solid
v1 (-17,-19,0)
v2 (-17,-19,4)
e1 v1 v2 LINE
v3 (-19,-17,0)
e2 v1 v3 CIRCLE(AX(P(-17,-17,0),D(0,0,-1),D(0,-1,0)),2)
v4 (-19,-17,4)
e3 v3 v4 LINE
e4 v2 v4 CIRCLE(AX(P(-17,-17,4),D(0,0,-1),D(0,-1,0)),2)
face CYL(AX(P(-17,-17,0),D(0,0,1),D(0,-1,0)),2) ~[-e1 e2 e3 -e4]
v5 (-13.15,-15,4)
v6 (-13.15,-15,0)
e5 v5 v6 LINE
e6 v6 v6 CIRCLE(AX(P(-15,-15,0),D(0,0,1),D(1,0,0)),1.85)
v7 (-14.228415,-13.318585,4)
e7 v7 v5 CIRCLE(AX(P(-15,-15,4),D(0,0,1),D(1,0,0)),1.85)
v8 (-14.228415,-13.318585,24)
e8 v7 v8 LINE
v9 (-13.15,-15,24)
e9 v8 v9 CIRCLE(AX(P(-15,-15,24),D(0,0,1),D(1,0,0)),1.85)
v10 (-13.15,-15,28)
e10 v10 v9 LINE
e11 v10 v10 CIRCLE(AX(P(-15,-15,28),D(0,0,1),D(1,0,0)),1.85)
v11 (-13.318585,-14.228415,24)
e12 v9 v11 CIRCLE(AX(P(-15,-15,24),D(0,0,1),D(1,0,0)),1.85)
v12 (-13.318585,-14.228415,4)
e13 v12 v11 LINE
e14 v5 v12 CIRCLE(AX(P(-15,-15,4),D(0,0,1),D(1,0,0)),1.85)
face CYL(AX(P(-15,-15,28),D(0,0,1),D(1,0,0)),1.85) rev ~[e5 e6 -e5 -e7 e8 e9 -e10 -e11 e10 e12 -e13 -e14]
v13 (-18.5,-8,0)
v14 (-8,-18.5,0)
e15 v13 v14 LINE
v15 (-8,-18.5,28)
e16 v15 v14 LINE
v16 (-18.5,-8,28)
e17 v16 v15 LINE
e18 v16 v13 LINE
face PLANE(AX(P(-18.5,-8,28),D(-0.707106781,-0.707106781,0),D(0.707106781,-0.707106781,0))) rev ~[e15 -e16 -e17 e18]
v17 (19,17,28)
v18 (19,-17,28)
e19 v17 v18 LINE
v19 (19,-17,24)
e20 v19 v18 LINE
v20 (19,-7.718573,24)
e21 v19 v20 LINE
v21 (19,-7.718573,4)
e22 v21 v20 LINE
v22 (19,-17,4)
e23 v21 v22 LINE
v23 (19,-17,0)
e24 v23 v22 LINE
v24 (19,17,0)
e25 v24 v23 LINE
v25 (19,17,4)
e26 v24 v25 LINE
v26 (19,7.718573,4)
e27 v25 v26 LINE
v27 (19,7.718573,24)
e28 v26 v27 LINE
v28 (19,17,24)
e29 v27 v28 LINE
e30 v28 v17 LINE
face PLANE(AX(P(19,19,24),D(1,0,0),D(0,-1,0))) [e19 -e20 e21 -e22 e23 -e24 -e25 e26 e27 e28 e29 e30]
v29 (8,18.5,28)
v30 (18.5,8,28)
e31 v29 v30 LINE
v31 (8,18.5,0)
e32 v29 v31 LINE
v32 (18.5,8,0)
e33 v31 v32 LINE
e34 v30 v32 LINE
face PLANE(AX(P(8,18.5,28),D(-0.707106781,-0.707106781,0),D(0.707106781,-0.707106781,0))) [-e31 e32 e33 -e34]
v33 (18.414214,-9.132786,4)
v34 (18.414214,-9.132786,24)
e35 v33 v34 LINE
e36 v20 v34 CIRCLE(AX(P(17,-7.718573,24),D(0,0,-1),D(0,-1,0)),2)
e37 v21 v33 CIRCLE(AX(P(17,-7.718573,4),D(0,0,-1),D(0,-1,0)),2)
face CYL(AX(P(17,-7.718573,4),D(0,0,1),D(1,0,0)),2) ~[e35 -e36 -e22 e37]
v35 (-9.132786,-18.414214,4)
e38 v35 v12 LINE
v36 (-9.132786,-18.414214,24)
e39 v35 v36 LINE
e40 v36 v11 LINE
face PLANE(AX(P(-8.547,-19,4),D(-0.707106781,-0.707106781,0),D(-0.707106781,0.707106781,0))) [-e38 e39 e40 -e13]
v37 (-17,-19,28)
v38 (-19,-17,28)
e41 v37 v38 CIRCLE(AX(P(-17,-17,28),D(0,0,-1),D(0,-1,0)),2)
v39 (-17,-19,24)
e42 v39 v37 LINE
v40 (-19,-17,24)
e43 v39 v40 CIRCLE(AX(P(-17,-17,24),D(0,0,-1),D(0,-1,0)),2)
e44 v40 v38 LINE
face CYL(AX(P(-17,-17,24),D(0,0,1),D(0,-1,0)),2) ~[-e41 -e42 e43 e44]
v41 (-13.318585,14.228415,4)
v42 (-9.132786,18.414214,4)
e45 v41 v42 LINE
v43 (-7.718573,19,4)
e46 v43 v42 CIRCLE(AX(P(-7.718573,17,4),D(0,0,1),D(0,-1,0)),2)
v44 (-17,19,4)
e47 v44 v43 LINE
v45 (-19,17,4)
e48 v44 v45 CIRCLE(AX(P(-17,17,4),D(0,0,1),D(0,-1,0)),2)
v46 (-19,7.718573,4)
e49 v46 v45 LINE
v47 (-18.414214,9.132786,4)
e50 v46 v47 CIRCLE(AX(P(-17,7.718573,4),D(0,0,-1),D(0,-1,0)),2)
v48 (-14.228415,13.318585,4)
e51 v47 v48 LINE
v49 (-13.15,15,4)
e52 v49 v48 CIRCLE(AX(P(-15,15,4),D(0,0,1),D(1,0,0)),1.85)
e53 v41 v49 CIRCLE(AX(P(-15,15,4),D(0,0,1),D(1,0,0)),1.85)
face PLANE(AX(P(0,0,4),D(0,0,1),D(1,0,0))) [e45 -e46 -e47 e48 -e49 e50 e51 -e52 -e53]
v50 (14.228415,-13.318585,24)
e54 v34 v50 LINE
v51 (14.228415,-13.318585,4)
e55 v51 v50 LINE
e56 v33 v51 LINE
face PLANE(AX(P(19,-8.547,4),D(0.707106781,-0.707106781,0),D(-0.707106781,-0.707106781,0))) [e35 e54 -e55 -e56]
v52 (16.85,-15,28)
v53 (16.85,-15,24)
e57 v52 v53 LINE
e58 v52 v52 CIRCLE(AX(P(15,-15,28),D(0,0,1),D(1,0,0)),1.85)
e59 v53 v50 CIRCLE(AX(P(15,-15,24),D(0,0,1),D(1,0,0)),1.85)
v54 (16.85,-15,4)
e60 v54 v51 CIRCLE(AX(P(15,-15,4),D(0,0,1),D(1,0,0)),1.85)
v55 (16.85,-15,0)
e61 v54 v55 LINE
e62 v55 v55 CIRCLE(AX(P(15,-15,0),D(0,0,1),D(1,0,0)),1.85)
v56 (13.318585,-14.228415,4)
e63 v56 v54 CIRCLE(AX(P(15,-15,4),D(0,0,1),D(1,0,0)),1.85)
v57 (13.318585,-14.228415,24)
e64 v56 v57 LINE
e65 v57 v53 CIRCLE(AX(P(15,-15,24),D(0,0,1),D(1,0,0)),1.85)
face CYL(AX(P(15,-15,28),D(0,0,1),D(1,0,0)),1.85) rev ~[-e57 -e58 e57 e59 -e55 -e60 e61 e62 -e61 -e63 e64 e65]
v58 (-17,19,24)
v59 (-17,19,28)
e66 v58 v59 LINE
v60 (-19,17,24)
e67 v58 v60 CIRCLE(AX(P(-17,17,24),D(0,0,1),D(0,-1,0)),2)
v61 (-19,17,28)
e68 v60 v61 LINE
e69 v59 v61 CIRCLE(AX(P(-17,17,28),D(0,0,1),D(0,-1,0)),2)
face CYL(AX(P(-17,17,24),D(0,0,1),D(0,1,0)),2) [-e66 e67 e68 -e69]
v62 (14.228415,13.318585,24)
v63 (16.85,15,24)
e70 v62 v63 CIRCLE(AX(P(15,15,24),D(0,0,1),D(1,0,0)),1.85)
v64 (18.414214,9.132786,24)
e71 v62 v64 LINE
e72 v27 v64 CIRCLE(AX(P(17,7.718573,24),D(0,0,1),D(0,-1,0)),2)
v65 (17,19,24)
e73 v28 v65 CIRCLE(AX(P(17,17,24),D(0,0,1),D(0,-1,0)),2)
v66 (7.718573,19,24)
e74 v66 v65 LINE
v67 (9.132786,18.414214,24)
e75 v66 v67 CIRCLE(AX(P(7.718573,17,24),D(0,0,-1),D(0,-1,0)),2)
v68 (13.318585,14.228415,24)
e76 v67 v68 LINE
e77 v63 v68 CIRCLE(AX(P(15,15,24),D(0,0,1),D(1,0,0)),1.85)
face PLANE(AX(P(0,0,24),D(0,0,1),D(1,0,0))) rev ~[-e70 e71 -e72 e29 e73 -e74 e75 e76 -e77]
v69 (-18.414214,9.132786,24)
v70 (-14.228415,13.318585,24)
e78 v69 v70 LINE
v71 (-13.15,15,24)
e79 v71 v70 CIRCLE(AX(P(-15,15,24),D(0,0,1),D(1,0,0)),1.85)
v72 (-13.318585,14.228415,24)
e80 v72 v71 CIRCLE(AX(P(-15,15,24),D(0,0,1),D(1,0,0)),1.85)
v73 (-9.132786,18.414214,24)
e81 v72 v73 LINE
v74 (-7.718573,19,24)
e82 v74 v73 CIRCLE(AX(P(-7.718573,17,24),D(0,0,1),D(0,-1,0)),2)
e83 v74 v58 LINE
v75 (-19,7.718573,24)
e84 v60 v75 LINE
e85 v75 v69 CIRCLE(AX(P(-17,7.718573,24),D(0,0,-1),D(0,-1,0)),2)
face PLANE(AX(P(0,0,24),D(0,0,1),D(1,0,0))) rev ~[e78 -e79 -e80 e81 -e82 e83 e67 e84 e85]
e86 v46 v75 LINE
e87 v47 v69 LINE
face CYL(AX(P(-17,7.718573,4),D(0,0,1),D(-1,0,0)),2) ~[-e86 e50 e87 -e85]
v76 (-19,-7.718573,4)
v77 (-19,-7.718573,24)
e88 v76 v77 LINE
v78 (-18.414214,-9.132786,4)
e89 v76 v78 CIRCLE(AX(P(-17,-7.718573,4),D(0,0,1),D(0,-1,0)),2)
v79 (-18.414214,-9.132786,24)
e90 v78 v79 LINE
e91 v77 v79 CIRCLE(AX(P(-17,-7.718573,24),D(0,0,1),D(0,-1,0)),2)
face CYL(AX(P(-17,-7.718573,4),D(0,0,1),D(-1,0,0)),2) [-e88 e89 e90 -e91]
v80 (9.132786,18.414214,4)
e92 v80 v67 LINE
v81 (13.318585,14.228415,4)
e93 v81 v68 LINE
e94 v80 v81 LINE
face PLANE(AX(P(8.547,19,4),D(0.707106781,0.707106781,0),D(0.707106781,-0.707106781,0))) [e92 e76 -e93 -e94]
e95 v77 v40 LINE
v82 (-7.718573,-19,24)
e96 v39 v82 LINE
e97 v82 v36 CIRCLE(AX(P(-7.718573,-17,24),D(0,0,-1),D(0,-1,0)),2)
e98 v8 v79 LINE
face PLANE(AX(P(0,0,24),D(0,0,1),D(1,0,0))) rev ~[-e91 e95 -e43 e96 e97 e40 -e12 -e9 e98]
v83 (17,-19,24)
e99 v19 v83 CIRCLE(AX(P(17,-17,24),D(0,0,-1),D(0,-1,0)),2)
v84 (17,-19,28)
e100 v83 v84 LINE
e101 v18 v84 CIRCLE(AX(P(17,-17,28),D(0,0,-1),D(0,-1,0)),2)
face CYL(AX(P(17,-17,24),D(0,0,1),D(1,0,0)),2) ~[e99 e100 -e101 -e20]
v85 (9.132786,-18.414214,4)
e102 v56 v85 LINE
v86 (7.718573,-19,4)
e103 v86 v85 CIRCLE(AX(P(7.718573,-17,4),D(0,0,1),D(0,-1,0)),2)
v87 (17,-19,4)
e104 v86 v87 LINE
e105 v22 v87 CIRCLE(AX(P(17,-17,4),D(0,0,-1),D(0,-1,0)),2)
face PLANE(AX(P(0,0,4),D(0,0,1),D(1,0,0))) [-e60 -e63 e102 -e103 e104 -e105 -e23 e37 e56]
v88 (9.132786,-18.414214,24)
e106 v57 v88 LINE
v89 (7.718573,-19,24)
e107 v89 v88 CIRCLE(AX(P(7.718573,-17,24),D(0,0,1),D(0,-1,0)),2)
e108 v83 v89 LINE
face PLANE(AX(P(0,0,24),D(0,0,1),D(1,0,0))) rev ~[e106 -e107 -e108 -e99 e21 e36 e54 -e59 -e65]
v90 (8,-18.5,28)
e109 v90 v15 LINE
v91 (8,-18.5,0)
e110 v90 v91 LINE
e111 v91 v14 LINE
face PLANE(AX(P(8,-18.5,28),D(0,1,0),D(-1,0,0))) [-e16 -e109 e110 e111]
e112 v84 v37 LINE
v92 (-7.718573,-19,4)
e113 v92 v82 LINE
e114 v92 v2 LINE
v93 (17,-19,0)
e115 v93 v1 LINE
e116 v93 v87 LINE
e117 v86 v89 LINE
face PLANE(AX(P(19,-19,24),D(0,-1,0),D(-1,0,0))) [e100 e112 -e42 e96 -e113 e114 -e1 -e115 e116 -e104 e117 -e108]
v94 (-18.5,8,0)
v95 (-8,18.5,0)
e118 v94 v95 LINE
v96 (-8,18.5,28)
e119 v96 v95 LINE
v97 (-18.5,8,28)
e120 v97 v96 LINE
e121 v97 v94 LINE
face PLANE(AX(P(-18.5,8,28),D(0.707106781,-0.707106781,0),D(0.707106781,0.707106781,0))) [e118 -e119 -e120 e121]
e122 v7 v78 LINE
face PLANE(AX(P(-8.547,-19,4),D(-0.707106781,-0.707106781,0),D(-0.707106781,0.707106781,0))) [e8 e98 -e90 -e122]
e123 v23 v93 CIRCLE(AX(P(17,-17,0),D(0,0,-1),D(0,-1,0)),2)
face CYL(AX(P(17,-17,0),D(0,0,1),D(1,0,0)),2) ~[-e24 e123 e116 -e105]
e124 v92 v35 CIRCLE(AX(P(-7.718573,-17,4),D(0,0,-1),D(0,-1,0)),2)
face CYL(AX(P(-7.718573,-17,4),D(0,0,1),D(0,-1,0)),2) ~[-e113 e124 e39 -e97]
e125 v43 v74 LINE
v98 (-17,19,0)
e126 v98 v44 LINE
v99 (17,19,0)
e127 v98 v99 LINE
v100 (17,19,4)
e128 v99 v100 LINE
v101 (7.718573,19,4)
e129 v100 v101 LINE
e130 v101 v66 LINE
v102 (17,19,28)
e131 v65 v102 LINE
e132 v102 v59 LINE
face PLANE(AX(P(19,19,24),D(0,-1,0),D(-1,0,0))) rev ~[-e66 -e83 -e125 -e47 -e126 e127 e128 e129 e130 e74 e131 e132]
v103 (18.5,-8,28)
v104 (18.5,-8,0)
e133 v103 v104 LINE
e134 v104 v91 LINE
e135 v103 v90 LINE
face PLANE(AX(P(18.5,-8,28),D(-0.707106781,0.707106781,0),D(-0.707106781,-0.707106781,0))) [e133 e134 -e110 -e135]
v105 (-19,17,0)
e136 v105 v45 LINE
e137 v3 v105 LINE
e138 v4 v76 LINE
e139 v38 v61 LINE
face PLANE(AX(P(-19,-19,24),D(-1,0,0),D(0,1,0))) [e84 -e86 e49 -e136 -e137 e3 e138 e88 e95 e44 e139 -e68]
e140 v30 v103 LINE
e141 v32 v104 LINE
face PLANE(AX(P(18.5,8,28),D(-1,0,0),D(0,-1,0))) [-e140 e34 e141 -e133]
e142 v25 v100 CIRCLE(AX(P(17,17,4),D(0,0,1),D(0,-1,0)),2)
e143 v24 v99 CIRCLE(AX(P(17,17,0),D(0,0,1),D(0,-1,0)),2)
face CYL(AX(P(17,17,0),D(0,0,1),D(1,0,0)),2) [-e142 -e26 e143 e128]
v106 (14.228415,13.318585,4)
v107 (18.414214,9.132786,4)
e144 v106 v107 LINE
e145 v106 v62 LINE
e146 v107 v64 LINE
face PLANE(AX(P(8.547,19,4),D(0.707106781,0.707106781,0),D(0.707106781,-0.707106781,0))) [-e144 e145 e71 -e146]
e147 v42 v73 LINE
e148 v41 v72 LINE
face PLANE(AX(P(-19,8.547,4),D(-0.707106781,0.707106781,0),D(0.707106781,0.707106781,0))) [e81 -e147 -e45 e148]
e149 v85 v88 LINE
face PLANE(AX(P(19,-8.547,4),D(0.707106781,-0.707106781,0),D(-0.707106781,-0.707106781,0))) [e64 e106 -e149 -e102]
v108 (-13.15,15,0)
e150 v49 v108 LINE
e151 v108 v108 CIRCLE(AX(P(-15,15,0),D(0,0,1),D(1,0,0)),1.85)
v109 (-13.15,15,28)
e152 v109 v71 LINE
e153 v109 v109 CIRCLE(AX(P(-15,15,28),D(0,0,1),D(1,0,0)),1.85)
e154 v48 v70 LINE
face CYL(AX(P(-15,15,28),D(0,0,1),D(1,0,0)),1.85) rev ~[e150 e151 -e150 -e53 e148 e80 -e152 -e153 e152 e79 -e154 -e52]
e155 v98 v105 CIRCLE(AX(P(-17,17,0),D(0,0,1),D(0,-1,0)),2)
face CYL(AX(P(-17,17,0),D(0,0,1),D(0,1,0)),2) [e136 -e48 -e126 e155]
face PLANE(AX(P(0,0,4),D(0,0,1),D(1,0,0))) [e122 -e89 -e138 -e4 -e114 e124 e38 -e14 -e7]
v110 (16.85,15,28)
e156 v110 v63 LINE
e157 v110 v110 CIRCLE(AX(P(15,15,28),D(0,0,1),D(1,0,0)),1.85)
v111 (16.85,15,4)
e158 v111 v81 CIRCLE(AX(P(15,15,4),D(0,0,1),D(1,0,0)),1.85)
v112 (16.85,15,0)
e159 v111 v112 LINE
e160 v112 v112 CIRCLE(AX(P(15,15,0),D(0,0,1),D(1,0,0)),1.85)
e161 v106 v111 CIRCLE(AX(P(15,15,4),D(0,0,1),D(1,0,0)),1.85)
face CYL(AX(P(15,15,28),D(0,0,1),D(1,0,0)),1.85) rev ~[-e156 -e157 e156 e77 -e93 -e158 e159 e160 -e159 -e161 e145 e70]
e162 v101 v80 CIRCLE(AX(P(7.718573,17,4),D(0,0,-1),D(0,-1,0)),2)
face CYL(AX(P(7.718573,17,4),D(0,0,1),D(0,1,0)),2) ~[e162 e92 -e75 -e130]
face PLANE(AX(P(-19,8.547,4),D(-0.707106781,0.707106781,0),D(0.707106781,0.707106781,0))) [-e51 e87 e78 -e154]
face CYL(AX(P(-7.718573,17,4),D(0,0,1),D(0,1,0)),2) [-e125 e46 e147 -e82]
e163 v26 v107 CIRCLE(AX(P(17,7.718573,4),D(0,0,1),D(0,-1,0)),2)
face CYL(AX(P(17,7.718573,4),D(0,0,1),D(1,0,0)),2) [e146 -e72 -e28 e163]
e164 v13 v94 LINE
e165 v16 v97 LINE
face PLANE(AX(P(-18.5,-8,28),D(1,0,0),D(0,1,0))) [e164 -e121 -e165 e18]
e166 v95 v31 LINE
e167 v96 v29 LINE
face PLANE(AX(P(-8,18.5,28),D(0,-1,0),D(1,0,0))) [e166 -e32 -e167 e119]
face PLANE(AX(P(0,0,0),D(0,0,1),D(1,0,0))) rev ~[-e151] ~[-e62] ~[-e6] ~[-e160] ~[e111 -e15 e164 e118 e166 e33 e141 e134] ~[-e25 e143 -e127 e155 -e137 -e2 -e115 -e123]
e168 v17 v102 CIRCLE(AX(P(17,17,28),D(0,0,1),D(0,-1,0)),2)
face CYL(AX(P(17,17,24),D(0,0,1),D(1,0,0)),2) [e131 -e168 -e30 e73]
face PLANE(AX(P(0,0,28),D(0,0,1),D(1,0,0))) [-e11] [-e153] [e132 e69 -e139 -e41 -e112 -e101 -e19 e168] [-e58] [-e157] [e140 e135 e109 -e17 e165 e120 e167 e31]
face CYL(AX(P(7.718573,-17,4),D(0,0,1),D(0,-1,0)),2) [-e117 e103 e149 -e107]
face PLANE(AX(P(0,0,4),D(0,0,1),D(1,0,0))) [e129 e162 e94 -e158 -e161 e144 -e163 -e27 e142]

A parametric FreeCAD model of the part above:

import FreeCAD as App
import Part
import Sketcher

V = App.Vector


def edges_at(feature, points):
    """Names of the edges that pass closest to the given points."""
    edges = feature.Shape.Edges
    near = lambda p: min(range(len(edges)), key=lambda i: edges[i].distToShape(Part.Vertex(*p))[0])
    return sorted({f"Edge{near(p) + 1}" for p in points})

doc = App.newDocument("Part")
body = doc.addObject("PartDesign::Body", "Body")

sketch1 = body.newObject("Sketcher::SketchObject", "Sketch")
sketch1.AttachmentSupport = (doc.getObject("XY_Plane"), [""])
sketch1.MapMode = "FlatFace"
sketch1.addGeometry(Part.LineSegment(V(-19, -19, 0), V(19, -19, 0)), False)
sketch1.addGeometry(Part.LineSegment(V(19, -19, 0), V(19, 19, 0)), False)
sketch1.addGeometry(Part.LineSegment(V(19, 19, 0), V(-19, 19, 0)), False)
sketch1.addGeometry(Part.LineSegment(V(-19, 19, 0), V(-19, -19, 0)), False)
sketch1.addConstraint(Sketcher.Constraint("Coincident", 0, 2, 1, 1))
sketch1.addConstraint(Sketcher.Constraint("Coincident", 1, 2, 2, 1))
sketch1.addConstraint(Sketcher.Constraint("Coincident", 2, 2, 3, 1))
sketch1.addConstraint(Sketcher.Constraint("Coincident", 3, 2, 0, 1))
sketch1.addConstraint(Sketcher.Constraint("Horizontal", 0))
sketch1.addConstraint(Sketcher.Constraint("Vertical", 1))
sketch1.addConstraint(Sketcher.Constraint("Horizontal", 2))
sketch1.addConstraint(Sketcher.Constraint("Vertical", 3))
sketch1.addConstraint(Sketcher.Constraint("Symmetric", 0, 2, 2, 2, -1, 1))
sketch1.addConstraint(Sketcher.Constraint("Equal", 2, 1))
sketch1.addConstraint(Sketcher.Constraint("DistanceX", 0, 1, 0, 2, 38.0))
pad1 = body.newObject("PartDesign::Pad", "Pad")
pad1.Profile = sketch1
pad1.Length = 4

sketch2 = body.newObject("Sketcher::SketchObject", "Sketch001")
sketch2.AttachmentSupport = (doc.getObject("XY_Plane"), [""])
sketch2.MapMode = "FlatFace"
sketch2.AttachmentOffset = App.Placement(V(0, 0, 4), App.Rotation())
sketch2.addGeometry(Part.LineSegment(V(19, 9, 0), V(9, 19, 0)), False)
sketch2.addGeometry(Part.LineSegment(V(9, 19, 0), V(-9, 19, 0)), False)
sketch2.addGeometry(Part.LineSegment(V(-9, 19, 0), V(-19, 9, 0)), False)
sketch2.addGeometry(Part.LineSegment(V(-19, 9, 0), V(-19, -9, 0)), False)
sketch2.addGeometry(Part.LineSegment(V(-19, -9, 0), V(-9, -19, 0)), False)
sketch2.addGeometry(Part.LineSegment(V(-9, -19, 0), V(9, -19, 0)), False)
sketch2.addGeometry(Part.LineSegment(V(9, -19, 0), V(19, -9, 0)), False)
sketch2.addGeometry(Part.LineSegment(V(19, -9, 0), V(19, 9, 0)), False)
sketch2.addConstraint(Sketcher.Constraint("Coincident", 0, 2, 1, 1))
sketch2.addConstraint(Sketcher.Constraint("Coincident", 1, 2, 2, 1))
sketch2.addConstraint(Sketcher.Constraint("Coincident", 2, 2, 3, 1))
sketch2.addConstraint(Sketcher.Constraint("Coincident", 3, 2, 4, 1))
sketch2.addConstraint(Sketcher.Constraint("Coincident", 4, 2, 5, 1))
sketch2.addConstraint(Sketcher.Constraint("Coincident", 5, 2, 6, 1))
sketch2.addConstraint(Sketcher.Constraint("Coincident", 6, 2, 7, 1))
sketch2.addConstraint(Sketcher.Constraint("Coincident", 7, 2, 0, 1))
sketch2.addConstraint(Sketcher.Constraint("Horizontal", 1))
sketch2.addConstraint(Sketcher.Constraint("Vertical", 3))
sketch2.addConstraint(Sketcher.Constraint("Horizontal", 5))
sketch2.addConstraint(Sketcher.Constraint("Vertical", 7))
sketch2.addConstraint(Sketcher.Constraint("Symmetric", 0, 2, 4, 2, -1, 1))
sketch2.addConstraint(Sketcher.Constraint("Symmetric", 2, 2, 6, 2, -1, 1))
sketch2.addConstraint(Sketcher.Constraint("Perpendicular", 0, 2))
sketch2.addConstraint(Sketcher.Constraint("Perpendicular", 2, 4))
sketch2.addConstraint(Sketcher.Constraint("Perpendicular", 4, 6))
sketch2.addConstraint(Sketcher.Constraint("Horizontal", 3, 2, 6, 2))
sketch2.addConstraint(Sketcher.Constraint("Vertical", 1, 2, 4, 2))
sketch2.addConstraint(Sketcher.Constraint("Equal", 5, 3))
sketch2.addConstraint(Sketcher.Constraint("DistanceY", 4, 2, 1, 2, 38.0))
sketch2.addConstraint(Sketcher.Constraint("DistanceX", 2, 2, 1, 2, 10.453))
pad2 = body.newObject("PartDesign::Pad", "Pad001")
pad2.Profile = sketch2
pad2.Length = 20

sketch3 = body.newObject("Sketcher::SketchObject", "Sketch002")
sketch3.AttachmentSupport = (doc.getObject("XY_Plane"), [""])
sketch3.MapMode = "FlatFace"
sketch3.AttachmentOffset = App.Placement(V(0, 0, 24), App.Rotation())
sketch3.addGeometry(Part.LineSegment(V(19, -19, 0), V(19, 19, 0)), False)
sketch3.addGeometry(Part.LineSegment(V(19, 19, 0), V(-19, 19, 0)), False)
sketch3.addGeometry(Part.LineSegment(V(-19, 19, 0), V(-19, -19, 0)), False)
sketch3.addGeometry(Part.LineSegment(V(-19, -19, 0), V(19, -19, 0)), False)
sketch3.addConstraint(Sketcher.Constraint("Coincident", 0, 2, 1, 1))
sketch3.addConstraint(Sketcher.Constraint("Coincident", 1, 2, 2, 1))
sketch3.addConstraint(Sketcher.Constraint("Coincident", 2, 2, 3, 1))
sketch3.addConstraint(Sketcher.Constraint("Coincident", 3, 2, 0, 1))
sketch3.addConstraint(Sketcher.Constraint("Vertical", 0))
sketch3.addConstraint(Sketcher.Constraint("Horizontal", 1))
sketch3.addConstraint(Sketcher.Constraint("Vertical", 2))
sketch3.addConstraint(Sketcher.Constraint("Horizontal", 3))
sketch3.addConstraint(Sketcher.Constraint("Symmetric", 0, 2, 2, 2, -1, 1))
sketch3.addConstraint(Sketcher.Constraint("Equal", 3, 0))
sketch3.addConstraint(Sketcher.Constraint("DistanceX", 1, 2, 1, 1, 38.0))
pad3 = body.newObject("PartDesign::Pad", "Pad002")
pad3.Profile = sketch3
pad3.Length = 4

sketch4 = body.newObject("Sketcher::SketchObject", "Sketch003")
sketch4.AttachmentSupport = (doc.getObject("XY_Plane"), [""])
sketch4.MapMode = "FlatFace"
sketch4.AttachmentOffset = App.Placement(V(0, 0, 28), App.Rotation())
sketch4.addGeometry(Part.LineSegment(V(-8, -18, 0), V(8, -18, 0)), False)
sketch4.addGeometry(Part.LineSegment(V(8, -18, 0), V(18, -8, 0)), False)
sketch4.addGeometry(Part.LineSegment(V(18, -8, 0), V(18, 8, 0)), False)
sketch4.addGeometry(Part.LineSegment(V(18, 8, 0), V(8, 18, 0)), False)
sketch4.addGeometry(Part.LineSegment(V(8, 18, 0), V(-8, 18, 0)), False)
sketch4.addGeometry(Part.LineSegment(V(-8, 18, 0), V(-18, 8, 0)), False)
sketch4.addGeometry(Part.LineSegment(V(-18, 8, 0), V(-18, -8, 0)), False)
sketch4.addGeometry(Part.LineSegment(V(-18, -8, 0), V(-8, -18, 0)), False)
sketch4.addConstraint(Sketcher.Constraint("Coincident", 0, 2, 1, 1))
sketch4.addConstraint(Sketcher.Constraint("Coincident", 1, 2, 2, 1))
sketch4.addConstraint(Sketcher.Constraint("Coincident", 2, 2, 3, 1))
sketch4.addConstraint(Sketcher.Constraint("Coincident", 3, 2, 4, 1))
sketch4.addConstraint(Sketcher.Constraint("Coincident", 4, 2, 5, 1))
sketch4.addConstraint(Sketcher.Constraint("Coincident", 5, 2, 6, 1))
sketch4.addConstraint(Sketcher.Constraint("Coincident", 6, 2, 7, 1))
sketch4.addConstraint(Sketcher.Constraint("Coincident", 7, 2, 0, 1))
sketch4.addConstraint(Sketcher.Constraint("Horizontal", 0))
sketch4.addConstraint(Sketcher.Constraint("Vertical", 2))
sketch4.addConstraint(Sketcher.Constraint("Horizontal", 4))
sketch4.addConstraint(Sketcher.Constraint("Vertical", 6))
sketch4.addConstraint(Sketcher.Constraint("Symmetric", 0, 2, 4, 2, -1, 1))
sketch4.addConstraint(Sketcher.Constraint("Symmetric", 1, 2, 5, 2, -1, 1))
sketch4.addConstraint(Sketcher.Constraint("Perpendicular", 1, 3))
sketch4.addConstraint(Sketcher.Constraint("Perpendicular", 5, 7))
sketch4.addConstraint(Sketcher.Constraint("Horizontal", 2, 2, 5, 2))
sketch4.addConstraint(Sketcher.Constraint("Horizontal", 1, 2, 6, 2))
sketch4.addConstraint(Sketcher.Constraint("Vertical", 0, 2, 3, 2))
sketch4.addConstraint(Sketcher.Constraint("Equal", 4, 2))
sketch4.addConstraint(Sketcher.Constraint("DistanceY", 0, 2, 3, 2, 37.0))
sketch4.addConstraint(Sketcher.Constraint("DistanceX", 0, 2, 1, 2, 10.5))
pocket1 = body.newObject("PartDesign::Pocket", "Pocket")
pocket1.Profile = sketch4
pocket1.Length = 28
doc.recompute()

fillet = body.newObject("PartDesign::Fillet", "Fillet")
fillet.Base = (pocket1, edges_at(pocket1, [
    (19, 19, 26),
    (19, 19, 2),
    (-19, 19, 26),
    (-19, 19, 2),
    (-19, -19, 26),
    (-19, -19, 2),
    (19, -19, 26),
    (19, -19, 2),
    (19, -8.547, 14),
    (8.547, -19, 14),
    (-8.547, -19, 14),
    (-19, -8.547, 14),
    (-19, 8.547, 14),
    (-8.547, 19, 14),
    (8.547, 19, 14),
    (19, 8.547, 14),
]))
fillet.Radius = 2

sketch5 = body.newObject("Sketcher::SketchObject", "Sketch004")
sketch5.AttachmentSupport = (doc.getObject("XY_Plane"), [""])
sketch5.MapMode = "FlatFace"
sketch5.AttachmentOffset = App.Placement(V(0, 0, 28), App.Rotation())
sketch5.addGeometry(Part.Circle(V(15, 15, 0), V(0, 0, 1), 1.9), False)
sketch5.addGeometry(Part.Circle(V(15, -15, 0), V(0, 0, 1), 1.9), False)
sketch5.addGeometry(Part.Circle(V(-15, -15, 0), V(0, 0, 1), 1.9), False)
sketch5.addGeometry(Part.Circle(V(-15, 15, 0), V(0, 0, 1), 1.9), False)
sketch5.addConstraint(Sketcher.Constraint("Equal", 0, 1))
sketch5.addConstraint(Sketcher.Constraint("Equal", 1, 2))
sketch5.addConstraint(Sketcher.Constraint("Equal", 2, 3))
sketch5.addConstraint(Sketcher.Constraint("Symmetric", 0, 3, 2, 3, -1, 1))
sketch5.addConstraint(Sketcher.Constraint("Symmetric", 1, 3, 3, 3, -1, 1))
sketch5.addConstraint(Sketcher.Constraint("Symmetric", 1, 3, 2, 3, -2))
sketch5.addConstraint(Sketcher.Constraint("Diameter", 0, 3.7))
sketch5.addConstraint(Sketcher.Constraint("DistanceY", 1, 3, 0, 3, 30.0))
sketch5.addConstraint(Sketcher.Constraint("DistanceX", 2, 3, 1, 3, 30.0))
pocket2 = body.newObject("PartDesign::Pocket", "Pocket001")
pocket2.Profile = sketch5
pocket2.Length = 28

doc.recompute()
